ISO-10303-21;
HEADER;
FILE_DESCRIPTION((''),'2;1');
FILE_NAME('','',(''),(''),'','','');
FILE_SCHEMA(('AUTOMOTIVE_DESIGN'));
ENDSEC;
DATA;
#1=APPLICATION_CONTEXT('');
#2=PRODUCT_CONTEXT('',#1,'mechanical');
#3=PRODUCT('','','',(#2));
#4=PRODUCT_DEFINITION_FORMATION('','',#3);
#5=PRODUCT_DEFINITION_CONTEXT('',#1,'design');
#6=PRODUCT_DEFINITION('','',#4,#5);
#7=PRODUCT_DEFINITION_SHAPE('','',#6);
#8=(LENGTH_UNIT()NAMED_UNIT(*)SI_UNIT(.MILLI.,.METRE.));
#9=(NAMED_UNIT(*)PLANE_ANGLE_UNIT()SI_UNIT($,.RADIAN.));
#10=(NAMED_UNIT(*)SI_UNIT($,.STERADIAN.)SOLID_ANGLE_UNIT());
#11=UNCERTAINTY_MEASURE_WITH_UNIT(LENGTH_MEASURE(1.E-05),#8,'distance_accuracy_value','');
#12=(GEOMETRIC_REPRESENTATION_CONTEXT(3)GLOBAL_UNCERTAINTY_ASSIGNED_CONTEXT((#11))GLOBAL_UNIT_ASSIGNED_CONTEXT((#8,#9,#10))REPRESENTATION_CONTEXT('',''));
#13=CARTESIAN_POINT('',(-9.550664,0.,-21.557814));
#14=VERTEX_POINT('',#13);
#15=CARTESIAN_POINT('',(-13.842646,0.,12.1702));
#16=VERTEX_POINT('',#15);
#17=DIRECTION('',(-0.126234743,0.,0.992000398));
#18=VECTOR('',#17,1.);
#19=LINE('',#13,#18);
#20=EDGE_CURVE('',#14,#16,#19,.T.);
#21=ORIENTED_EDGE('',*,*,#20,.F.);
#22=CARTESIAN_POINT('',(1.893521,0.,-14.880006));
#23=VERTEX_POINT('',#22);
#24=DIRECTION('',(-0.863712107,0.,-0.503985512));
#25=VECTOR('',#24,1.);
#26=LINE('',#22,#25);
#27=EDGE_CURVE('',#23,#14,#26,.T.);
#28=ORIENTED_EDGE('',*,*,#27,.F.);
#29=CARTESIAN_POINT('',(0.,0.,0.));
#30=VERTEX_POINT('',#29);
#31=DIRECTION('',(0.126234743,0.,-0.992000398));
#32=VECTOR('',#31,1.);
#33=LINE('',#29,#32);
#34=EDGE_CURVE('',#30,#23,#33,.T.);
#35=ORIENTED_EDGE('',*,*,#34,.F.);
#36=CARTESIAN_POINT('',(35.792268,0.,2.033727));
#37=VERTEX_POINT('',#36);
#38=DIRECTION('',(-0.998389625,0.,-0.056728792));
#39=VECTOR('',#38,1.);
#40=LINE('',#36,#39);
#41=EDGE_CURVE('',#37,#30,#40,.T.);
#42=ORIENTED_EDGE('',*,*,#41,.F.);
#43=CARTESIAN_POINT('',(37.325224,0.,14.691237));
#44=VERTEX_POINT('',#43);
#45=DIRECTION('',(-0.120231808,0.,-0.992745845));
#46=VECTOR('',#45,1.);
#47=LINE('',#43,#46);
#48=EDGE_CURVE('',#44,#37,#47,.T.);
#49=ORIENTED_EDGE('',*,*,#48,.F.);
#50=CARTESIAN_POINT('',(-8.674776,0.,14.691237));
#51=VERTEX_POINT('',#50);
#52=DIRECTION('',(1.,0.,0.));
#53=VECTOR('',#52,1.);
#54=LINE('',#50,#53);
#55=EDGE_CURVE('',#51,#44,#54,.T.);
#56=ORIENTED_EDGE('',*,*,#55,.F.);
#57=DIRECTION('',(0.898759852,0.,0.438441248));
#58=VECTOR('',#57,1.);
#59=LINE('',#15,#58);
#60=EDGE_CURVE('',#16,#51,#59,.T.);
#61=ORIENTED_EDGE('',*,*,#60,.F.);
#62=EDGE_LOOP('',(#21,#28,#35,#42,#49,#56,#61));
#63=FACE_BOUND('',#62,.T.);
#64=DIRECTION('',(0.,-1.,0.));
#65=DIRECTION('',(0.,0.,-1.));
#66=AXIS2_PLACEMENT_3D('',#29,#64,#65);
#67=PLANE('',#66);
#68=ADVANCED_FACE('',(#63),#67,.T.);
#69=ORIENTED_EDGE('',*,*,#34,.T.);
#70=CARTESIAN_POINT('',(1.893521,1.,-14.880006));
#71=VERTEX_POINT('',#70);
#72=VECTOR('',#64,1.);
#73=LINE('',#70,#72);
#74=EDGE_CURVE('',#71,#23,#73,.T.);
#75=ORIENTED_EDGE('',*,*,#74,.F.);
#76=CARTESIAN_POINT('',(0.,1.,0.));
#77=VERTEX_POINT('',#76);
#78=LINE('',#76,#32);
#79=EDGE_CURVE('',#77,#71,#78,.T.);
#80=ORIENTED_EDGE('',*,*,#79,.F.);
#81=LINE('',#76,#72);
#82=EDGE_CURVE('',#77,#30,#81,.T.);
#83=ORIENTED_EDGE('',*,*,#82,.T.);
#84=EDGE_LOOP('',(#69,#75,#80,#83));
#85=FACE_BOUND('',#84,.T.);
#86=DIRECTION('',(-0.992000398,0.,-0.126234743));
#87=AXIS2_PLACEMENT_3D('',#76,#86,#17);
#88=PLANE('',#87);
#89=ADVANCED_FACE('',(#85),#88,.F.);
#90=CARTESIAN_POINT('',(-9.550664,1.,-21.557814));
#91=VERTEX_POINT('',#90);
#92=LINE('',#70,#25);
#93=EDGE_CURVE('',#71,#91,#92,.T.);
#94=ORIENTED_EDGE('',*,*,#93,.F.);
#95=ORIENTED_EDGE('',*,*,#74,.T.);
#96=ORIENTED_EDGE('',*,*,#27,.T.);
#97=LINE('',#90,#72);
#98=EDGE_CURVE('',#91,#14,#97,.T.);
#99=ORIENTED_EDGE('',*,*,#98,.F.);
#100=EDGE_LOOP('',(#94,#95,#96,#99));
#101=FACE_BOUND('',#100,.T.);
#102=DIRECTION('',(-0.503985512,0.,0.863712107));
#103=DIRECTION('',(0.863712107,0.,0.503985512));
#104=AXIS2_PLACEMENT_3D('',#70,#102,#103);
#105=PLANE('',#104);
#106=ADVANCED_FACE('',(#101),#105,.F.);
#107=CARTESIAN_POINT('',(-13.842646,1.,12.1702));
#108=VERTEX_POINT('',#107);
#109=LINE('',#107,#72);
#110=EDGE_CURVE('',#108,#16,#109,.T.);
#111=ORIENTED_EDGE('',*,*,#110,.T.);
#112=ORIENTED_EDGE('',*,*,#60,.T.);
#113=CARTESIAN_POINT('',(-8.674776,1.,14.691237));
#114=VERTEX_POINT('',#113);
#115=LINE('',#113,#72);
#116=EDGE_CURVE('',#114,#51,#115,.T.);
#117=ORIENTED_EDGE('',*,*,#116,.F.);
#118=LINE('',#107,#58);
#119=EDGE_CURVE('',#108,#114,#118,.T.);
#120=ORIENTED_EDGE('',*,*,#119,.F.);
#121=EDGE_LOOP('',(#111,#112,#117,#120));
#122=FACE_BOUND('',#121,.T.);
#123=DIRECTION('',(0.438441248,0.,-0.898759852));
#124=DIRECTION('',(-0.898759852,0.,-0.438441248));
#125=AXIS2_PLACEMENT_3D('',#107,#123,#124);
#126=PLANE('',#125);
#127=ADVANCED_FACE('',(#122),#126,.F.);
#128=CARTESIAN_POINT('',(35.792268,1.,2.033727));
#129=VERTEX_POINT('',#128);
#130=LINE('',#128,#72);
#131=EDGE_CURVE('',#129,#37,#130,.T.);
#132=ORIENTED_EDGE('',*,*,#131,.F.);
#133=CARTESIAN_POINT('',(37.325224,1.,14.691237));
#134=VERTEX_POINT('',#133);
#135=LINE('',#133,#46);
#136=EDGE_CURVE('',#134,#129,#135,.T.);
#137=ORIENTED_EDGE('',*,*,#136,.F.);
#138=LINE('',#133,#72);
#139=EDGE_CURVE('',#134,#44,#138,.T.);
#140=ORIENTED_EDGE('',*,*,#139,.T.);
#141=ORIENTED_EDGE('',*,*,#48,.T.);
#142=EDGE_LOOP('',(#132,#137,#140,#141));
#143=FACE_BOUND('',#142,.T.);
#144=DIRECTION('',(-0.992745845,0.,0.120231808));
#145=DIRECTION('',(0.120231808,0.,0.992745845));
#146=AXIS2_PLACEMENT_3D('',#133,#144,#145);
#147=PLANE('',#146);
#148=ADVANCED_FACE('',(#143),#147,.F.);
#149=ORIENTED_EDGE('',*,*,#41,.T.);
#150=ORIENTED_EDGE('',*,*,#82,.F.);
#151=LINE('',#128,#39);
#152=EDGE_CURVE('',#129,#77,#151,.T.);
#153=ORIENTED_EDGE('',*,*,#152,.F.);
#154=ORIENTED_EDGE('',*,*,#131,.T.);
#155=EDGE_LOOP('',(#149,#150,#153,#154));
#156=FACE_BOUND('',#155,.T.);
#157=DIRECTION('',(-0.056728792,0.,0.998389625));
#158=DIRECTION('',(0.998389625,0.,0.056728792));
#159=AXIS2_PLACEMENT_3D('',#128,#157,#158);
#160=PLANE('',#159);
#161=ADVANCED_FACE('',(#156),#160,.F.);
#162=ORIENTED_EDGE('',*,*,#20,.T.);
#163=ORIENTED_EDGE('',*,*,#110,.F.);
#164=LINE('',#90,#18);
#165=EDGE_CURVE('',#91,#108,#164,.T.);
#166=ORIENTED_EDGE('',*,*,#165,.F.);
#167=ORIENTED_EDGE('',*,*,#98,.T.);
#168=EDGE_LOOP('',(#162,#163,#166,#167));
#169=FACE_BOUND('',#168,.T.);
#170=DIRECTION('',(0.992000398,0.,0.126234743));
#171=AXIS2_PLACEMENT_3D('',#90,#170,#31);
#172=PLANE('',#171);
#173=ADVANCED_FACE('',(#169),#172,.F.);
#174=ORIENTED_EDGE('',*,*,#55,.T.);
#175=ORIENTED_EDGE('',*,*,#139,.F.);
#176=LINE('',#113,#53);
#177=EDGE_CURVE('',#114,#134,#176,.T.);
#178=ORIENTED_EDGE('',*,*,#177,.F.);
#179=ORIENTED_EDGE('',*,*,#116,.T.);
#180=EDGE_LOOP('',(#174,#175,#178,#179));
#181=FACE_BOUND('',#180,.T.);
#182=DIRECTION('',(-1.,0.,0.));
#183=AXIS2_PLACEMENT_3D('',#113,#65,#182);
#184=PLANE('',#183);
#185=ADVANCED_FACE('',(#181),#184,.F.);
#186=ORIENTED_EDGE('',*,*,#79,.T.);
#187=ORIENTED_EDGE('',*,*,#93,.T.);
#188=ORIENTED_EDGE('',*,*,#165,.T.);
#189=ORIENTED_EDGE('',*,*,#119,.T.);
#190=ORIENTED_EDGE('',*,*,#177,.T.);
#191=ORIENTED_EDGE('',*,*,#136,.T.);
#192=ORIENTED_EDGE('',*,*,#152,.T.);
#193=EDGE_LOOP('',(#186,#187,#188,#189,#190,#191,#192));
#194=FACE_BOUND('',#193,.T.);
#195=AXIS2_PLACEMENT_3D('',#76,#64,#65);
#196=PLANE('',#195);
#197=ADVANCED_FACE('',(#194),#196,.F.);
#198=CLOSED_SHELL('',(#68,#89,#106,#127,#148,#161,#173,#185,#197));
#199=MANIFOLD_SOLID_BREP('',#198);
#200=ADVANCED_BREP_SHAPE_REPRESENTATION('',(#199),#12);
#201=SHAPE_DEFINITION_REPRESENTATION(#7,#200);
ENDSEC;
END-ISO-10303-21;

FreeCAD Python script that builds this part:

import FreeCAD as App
import Part
import Sketcher
from FreeCAD import Vector
Q = App.Units.Quantity


def add_polygon(sketch, points):
    """Adds a closed chain of lines whose ends are joined by coincident constraints."""
    first, n = sketch.GeometryCount, len(points)
    for a, b in zip(points, points[1:] + points[:1]):
        sketch.addGeometry(Part.LineSegment(App.Vector(*a, 0), App.Vector(*b, 0)), False)
    for i in range(n):
        sketch.addConstraint(Sketcher.Constraint("Coincident", first + i, 2, first + (i + 1) % n, 1))

doc = App.newDocument("Part")
body = doc.addObject("PartDesign::Body", "Body")

sketch1 = body.newObject("Sketcher::SketchObject", "Sketch")
sketch1.AttachmentSupport = (doc.getObject("XZ_Plane"), [""])
sketch1.MapMode = "FlatFace"
add_polygon(sketch1, [(0, 0), (1.893521, -14.880006), (-9.550664, -21.557814), (-13.842646, 12.1702), (-8.674776, 14.691237), (37.325224, 14.691237), (35.792268, 2.033727)])
sketch1.addConstraint([
    Sketcher.Constraint("Horizontal", 4),
    Sketcher.Constraint("Coincident", 6, 2, -1, 1),
    Sketcher.Constraint("Parallel", 0, 2),
    Sketcher.Constraint("DistanceX", 4, 1, 4, 2, Q("46 mm")),
    Sketcher.Constraint("Distance", 0, Q("15 mm")),
    Sketcher.Constraint("Distance", 2, Q("34 mm")),
    Sketcher.Constraint("Distance", 1, Q("13.25 mm")),
    Sketcher.Constraint("Distance", 3, Q("5.75 mm")),
    Sketcher.Constraint("Distance", 5, Q("12.75 mm")),
    Sketcher.Constraint("Distance", 6, Q("35.85 mm")),
    Sketcher.Constraint("DistanceY", -1, 1, 2, 2, Q("12.1702 mm")),
    Sketcher.Constraint("DistanceX", -1, 1, 0, 2, Q("1.893521 mm")),
    Sketcher.Constraint("DistanceX", -1, 1, 5, 2, Q("35.792268 mm")),
])
pad1 = body.newObject("PartDesign::Pad", "Pad")
pad1.Profile = sketch1
pad1.Length = 1
pad1.Reversed = True

doc.recompute()
